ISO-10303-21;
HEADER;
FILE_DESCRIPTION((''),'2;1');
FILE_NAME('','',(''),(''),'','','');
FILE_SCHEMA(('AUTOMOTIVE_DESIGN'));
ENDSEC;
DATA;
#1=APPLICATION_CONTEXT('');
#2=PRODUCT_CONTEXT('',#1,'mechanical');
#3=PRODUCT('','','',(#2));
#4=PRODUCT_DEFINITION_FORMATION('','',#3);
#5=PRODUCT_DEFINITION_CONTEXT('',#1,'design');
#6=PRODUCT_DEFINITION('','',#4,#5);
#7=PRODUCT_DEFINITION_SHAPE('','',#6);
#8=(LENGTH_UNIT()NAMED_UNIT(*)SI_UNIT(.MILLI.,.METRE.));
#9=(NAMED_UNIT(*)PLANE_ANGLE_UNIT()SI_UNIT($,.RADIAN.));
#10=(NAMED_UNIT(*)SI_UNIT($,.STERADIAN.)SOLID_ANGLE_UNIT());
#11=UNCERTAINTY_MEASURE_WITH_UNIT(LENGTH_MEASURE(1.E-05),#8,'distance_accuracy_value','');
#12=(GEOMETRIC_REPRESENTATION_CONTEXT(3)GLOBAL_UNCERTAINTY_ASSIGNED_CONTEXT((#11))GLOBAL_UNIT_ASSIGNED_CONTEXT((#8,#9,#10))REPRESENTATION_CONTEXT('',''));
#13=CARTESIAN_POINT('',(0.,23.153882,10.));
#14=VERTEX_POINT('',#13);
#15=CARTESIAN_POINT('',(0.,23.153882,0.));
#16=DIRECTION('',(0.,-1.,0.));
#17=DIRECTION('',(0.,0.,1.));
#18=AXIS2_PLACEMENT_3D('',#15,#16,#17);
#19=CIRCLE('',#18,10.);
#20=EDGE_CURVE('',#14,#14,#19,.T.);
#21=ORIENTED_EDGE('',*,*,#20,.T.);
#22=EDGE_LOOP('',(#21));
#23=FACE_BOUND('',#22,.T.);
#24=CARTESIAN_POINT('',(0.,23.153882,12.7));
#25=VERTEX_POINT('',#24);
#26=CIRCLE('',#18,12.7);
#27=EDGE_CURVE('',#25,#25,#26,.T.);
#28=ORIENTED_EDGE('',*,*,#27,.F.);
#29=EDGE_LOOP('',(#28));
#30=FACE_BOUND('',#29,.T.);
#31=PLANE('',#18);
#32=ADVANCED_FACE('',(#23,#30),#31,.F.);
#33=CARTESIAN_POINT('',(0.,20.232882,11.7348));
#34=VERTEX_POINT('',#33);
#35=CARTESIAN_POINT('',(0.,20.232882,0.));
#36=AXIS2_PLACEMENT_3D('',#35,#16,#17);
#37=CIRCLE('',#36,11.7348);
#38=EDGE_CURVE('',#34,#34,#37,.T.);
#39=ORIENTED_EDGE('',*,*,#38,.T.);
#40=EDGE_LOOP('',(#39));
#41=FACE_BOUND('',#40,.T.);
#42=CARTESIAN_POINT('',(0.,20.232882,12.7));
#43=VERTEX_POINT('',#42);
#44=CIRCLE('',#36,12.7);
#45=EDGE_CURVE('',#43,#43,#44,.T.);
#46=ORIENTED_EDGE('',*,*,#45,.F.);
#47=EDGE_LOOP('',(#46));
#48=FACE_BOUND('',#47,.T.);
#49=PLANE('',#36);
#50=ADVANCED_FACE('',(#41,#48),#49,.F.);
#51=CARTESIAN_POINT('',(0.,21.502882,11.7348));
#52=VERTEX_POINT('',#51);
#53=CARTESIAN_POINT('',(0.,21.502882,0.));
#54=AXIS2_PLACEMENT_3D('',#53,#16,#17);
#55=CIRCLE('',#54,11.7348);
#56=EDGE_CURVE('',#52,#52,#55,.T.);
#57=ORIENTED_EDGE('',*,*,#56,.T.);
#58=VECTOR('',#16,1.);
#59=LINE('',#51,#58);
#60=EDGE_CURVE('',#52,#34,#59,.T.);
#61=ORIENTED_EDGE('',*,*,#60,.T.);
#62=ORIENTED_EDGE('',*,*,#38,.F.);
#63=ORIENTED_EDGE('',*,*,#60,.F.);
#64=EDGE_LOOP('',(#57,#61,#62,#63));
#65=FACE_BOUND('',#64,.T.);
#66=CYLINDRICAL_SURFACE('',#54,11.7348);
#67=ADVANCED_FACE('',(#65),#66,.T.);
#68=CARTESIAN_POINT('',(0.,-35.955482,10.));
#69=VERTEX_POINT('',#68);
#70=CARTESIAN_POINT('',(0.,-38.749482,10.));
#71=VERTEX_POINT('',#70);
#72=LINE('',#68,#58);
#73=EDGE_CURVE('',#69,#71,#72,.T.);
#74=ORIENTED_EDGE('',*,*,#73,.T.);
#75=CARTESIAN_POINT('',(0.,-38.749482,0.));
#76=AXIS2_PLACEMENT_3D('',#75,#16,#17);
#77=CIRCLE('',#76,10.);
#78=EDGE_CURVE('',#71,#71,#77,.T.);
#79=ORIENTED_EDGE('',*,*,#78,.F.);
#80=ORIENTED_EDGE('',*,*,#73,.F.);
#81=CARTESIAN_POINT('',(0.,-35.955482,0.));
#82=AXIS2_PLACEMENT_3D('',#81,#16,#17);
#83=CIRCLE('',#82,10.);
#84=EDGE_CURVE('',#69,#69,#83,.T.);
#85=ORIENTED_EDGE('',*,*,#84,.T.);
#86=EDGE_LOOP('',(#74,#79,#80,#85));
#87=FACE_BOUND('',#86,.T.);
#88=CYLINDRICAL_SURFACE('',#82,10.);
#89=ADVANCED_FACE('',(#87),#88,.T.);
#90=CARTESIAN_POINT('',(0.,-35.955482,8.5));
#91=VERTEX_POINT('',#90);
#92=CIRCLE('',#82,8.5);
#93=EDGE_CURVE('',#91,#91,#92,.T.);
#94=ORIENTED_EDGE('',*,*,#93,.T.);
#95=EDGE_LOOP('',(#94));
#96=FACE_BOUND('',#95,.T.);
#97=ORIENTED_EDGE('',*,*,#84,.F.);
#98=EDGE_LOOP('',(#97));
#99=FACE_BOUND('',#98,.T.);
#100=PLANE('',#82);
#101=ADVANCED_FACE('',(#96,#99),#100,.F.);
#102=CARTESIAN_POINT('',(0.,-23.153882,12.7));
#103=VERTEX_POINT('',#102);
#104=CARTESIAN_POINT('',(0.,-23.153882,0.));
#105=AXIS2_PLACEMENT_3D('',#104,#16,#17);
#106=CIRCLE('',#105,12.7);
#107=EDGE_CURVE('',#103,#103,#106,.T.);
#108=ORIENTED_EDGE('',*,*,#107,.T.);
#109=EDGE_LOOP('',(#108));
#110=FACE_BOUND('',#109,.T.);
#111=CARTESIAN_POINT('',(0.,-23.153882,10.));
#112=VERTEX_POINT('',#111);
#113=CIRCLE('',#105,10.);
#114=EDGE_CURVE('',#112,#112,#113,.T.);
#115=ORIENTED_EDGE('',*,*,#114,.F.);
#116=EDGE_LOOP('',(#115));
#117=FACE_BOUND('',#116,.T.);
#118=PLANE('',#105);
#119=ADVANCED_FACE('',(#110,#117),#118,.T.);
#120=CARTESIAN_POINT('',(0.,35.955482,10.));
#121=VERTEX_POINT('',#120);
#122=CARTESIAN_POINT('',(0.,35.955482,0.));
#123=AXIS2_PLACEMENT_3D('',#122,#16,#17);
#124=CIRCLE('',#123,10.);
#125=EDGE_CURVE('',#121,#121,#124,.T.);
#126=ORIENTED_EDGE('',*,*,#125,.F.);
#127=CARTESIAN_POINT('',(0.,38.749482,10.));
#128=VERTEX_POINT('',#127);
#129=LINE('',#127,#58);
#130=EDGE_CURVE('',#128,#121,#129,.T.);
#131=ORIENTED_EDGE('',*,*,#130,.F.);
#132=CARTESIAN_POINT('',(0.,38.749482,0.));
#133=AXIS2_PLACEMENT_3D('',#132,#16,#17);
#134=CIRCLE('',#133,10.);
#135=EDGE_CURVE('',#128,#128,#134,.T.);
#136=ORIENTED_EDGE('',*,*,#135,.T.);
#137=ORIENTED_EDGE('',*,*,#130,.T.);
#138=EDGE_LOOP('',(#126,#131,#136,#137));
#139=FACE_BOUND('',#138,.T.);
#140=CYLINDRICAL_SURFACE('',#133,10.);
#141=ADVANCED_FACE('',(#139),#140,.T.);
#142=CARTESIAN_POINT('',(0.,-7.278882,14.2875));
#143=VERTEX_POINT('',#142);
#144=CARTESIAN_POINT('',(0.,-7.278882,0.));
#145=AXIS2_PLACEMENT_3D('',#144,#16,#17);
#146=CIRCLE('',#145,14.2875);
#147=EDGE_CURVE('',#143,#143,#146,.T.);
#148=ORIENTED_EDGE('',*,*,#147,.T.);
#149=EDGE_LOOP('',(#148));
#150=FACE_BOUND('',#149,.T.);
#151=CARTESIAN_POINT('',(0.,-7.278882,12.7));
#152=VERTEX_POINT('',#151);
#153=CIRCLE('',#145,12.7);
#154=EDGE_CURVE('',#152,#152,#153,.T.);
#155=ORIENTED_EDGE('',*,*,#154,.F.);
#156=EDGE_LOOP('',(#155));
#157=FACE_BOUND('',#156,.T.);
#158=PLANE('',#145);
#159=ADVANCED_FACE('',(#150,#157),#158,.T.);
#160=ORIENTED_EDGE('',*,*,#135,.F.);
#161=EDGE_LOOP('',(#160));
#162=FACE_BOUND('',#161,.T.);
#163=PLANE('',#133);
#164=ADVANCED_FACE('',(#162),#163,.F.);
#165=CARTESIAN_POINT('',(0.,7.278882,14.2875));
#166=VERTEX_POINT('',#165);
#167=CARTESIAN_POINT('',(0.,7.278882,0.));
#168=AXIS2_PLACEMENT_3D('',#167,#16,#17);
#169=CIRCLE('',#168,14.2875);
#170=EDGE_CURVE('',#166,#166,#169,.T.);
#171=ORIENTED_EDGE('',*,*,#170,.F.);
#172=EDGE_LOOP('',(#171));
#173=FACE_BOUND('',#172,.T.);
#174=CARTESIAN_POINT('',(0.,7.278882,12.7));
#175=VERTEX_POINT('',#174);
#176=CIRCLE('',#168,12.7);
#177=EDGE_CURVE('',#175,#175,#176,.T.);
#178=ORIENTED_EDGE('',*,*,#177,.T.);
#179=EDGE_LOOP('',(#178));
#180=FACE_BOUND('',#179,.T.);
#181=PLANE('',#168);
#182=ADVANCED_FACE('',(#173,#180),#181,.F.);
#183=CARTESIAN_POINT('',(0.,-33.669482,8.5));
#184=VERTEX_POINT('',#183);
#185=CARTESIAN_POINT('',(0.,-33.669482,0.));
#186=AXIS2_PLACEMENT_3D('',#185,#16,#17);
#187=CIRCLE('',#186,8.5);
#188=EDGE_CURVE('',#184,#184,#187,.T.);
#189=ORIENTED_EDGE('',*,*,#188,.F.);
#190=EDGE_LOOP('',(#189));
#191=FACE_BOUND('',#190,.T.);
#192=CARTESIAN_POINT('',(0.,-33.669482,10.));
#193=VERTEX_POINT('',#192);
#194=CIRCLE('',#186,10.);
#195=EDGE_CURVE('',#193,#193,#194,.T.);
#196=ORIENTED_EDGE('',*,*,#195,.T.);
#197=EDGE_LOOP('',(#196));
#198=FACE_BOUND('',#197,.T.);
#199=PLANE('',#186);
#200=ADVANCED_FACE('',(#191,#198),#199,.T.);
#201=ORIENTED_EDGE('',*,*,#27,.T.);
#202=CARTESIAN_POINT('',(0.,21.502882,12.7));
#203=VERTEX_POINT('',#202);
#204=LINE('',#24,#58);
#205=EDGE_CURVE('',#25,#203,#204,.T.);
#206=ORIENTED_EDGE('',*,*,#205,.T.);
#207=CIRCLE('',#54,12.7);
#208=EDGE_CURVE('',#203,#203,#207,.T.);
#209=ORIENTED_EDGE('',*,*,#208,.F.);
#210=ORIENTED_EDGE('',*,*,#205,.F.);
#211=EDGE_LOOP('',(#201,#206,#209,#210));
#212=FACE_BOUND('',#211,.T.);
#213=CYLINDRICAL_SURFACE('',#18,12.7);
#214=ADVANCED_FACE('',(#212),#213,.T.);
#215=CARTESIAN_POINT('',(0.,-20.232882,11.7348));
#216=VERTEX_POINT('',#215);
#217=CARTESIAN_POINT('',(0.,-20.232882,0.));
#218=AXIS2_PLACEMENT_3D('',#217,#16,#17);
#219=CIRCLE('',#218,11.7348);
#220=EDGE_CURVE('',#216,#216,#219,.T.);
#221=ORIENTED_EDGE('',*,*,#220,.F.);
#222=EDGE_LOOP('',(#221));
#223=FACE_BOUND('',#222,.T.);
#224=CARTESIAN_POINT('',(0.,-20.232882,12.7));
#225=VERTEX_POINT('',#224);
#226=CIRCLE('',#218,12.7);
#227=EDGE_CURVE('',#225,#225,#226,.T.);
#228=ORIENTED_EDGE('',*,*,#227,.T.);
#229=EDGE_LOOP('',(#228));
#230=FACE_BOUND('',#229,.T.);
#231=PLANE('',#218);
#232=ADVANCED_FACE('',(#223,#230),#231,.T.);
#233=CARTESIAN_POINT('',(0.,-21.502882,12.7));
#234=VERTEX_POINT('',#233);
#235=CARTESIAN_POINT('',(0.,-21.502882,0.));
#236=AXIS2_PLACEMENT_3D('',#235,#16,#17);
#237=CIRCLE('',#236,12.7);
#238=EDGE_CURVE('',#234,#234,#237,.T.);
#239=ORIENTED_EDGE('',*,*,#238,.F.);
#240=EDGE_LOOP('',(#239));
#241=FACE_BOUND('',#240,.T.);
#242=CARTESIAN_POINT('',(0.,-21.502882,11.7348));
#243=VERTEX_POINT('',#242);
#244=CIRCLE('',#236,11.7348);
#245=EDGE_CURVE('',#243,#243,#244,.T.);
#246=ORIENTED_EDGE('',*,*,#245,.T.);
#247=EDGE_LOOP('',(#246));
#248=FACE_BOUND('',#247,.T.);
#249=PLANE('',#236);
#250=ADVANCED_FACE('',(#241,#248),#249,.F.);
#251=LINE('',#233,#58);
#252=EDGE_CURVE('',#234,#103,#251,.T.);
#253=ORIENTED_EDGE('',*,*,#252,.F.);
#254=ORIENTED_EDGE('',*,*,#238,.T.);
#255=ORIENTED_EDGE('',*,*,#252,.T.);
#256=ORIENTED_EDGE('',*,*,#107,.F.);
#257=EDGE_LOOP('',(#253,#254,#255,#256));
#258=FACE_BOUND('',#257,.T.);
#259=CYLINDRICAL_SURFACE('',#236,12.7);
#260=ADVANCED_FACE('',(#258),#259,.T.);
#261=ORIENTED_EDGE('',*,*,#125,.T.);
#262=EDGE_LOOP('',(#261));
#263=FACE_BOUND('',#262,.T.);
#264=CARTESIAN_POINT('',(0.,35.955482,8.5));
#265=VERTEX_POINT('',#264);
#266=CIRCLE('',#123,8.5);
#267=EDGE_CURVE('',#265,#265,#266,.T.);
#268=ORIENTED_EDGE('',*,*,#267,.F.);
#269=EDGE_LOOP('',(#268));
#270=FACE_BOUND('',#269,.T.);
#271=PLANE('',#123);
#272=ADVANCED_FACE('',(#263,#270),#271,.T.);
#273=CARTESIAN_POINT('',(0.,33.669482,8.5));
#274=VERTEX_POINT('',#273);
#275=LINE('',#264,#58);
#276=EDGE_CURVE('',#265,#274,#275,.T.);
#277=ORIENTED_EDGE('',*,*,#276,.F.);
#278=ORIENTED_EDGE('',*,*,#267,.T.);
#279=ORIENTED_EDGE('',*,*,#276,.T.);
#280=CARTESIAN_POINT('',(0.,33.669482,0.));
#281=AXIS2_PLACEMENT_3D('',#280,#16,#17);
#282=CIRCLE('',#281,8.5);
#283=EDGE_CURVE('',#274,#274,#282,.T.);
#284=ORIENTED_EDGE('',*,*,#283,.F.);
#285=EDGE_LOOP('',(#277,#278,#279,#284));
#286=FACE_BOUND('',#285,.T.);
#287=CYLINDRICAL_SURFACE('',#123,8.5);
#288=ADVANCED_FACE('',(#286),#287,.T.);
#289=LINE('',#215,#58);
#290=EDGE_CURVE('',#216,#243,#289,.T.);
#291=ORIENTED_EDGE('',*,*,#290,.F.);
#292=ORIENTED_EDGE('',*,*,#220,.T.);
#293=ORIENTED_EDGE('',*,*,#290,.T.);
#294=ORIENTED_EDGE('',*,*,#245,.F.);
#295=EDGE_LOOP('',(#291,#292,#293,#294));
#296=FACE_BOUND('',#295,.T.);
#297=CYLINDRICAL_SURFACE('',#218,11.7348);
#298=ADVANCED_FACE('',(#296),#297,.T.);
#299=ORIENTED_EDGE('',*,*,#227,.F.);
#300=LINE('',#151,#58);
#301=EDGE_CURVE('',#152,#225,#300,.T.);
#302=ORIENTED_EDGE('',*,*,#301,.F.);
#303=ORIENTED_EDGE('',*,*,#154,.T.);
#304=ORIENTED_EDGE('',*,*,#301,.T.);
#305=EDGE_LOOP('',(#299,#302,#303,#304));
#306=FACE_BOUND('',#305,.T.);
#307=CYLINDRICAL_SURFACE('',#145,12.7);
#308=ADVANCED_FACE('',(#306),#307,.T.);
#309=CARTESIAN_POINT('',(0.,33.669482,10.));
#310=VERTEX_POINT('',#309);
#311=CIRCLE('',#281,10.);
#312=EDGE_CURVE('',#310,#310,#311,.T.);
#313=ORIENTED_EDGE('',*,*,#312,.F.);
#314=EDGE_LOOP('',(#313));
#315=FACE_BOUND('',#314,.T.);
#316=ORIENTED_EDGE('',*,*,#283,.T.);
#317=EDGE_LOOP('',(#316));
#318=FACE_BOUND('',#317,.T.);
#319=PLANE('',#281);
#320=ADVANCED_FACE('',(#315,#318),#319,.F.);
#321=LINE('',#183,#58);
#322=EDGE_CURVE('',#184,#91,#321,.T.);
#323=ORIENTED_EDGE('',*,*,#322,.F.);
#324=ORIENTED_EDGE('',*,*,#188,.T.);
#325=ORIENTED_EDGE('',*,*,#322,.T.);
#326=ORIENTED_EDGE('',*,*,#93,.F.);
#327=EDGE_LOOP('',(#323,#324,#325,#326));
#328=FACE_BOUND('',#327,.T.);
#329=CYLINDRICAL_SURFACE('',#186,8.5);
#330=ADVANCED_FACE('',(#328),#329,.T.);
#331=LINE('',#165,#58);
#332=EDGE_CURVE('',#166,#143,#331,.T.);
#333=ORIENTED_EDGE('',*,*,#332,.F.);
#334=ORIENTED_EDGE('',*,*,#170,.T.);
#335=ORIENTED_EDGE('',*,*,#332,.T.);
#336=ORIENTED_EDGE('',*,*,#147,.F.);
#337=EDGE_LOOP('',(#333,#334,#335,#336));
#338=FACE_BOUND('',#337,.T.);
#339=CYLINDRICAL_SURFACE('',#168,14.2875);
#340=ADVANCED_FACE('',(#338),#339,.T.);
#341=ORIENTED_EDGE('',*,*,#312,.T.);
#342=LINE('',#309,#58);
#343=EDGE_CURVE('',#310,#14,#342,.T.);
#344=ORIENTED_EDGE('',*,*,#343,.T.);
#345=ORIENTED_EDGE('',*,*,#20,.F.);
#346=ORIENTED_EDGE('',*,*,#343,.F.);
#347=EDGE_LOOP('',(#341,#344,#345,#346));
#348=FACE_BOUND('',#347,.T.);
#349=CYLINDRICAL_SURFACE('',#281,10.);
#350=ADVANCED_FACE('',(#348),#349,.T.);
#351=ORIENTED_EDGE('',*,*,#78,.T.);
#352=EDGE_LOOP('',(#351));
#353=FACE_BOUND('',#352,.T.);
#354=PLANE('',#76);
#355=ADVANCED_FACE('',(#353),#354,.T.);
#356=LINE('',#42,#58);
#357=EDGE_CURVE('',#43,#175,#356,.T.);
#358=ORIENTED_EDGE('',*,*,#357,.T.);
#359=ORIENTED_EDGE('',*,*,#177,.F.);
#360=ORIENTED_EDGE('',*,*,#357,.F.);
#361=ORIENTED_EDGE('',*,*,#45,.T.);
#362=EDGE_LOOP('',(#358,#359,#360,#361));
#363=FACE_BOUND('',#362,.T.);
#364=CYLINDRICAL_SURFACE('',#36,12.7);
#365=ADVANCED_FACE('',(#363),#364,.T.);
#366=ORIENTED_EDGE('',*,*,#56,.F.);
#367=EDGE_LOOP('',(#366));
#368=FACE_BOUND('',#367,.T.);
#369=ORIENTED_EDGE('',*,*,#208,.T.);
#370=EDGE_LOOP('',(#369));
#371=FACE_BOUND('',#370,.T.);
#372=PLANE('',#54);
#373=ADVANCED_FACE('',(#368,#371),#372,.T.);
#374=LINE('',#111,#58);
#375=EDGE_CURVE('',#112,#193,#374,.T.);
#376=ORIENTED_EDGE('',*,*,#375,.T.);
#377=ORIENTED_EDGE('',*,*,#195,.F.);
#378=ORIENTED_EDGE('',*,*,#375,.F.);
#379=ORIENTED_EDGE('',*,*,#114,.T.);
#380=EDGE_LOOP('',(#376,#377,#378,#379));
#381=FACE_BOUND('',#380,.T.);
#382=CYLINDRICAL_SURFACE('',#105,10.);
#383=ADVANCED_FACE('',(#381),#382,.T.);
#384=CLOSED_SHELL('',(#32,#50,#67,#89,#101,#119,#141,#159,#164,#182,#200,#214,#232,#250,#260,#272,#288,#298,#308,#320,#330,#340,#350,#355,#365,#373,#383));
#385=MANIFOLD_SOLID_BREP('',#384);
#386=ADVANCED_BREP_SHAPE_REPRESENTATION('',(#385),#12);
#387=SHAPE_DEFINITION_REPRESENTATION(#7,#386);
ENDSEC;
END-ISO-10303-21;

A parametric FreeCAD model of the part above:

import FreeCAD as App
import Part
import Sketcher
Q = App.Units.Quantity


def add_polygon(sketch, points):
    """Adds a closed chain of lines whose ends are joined by coincident constraints."""
    first, n = sketch.GeometryCount, len(points)
    for a, b in zip(points, points[1:] + points[:1]):
        sketch.addGeometry(Part.LineSegment(App.Vector(*a, 0), App.Vector(*b, 0)), False)
    for i in range(n):
        sketch.addConstraint(Sketcher.Constraint("Coincident", first + i, 2, first + (i + 1) % n, 1))

doc = App.newDocument("Part")
body = doc.addObject("PartDesign::Body", "Body")

sketch1 = body.newObject("Sketcher::SketchObject", "Sketch")
sketch1.AttachmentSupport = (doc.getObject("YZ_Plane"), [""])
sketch1.MapMode = "FlatFace"
add_polygon(sketch1, [(38.7, 0), (38.7, 10), (36, 10), (36, 8.5), (33.7, 8.5), (33.7, 10), (23.2, 10), (23.2, 12.7), (21.5, 12.7), (21.5, 11.7), (20.2, 11.7), (20.2, 12.7), (7.3, 12.7), (7.3, 14.3), (-7.3, 14.3), (-7.3, 12.7), (-20.2, 12.7), (-20.2, 11.7), (-21.5, 11.7), (-21.5, 12.7), (-23.2, 12.7), (-23.2, 10), (-33.7, 10), (-33.7, 8.5), (-36, 8.5), (-36, 10), (-38.7, 10), (-38.7, 0)])
sketch1.addConstraint([
    Sketcher.Constraint("Vertical", 0),
    Sketcher.Constraint("Horizontal", 1),
    Sketcher.Constraint("Vertical", 2),
    Sketcher.Constraint("Horizontal", 3),
    Sketcher.Constraint("Vertical", 4),
    Sketcher.Constraint("Horizontal", 5),
    Sketcher.Constraint("Vertical", 6),
    Sketcher.Constraint("Horizontal", 7),
    Sketcher.Constraint("Vertical", 8),
    Sketcher.Constraint("Horizontal", 9),
    Sketcher.Constraint("Vertical", 10),
    Sketcher.Constraint("Horizontal", 11),
    Sketcher.Constraint("Vertical", 12),
    Sketcher.Constraint("Horizontal", 13),
    Sketcher.Constraint("Vertical", 14),
    Sketcher.Constraint("Horizontal", 15),
    Sketcher.Constraint("Vertical", 16),
    Sketcher.Constraint("Horizontal", 17),
    Sketcher.Constraint("Vertical", 18),
    Sketcher.Constraint("Horizontal", 19),
    Sketcher.Constraint("Vertical", 20),
    Sketcher.Constraint("Horizontal", 21),
    Sketcher.Constraint("Vertical", 22),
    Sketcher.Constraint("Horizontal", 23),
    Sketcher.Constraint("Vertical", 24),
    Sketcher.Constraint("Horizontal", 25),
    Sketcher.Constraint("Vertical", 26),
    Sketcher.Constraint("Horizontal", 27),
    Sketcher.Constraint("Symmetric", 26, 2, 27, 2, -1, 1),
    Sketcher.Constraint("Symmetric", 11, 2, 14, 2, -2),
    Sketcher.Constraint("Symmetric", 9, 2, 16, 2, -2),
    Sketcher.Constraint("Symmetric", 7, 2, 18, 2, -2),
    Sketcher.Constraint("Symmetric", 5, 2, 20, 2, -2),
    Sketcher.Constraint("Symmetric", 3, 2, 22, 2, -2),
    Sketcher.Constraint("Symmetric", 1, 2, 24, 2, -2),
    Sketcher.Constraint("Horizontal", 1, 2, 4, 2),
    Sketcher.Constraint("Horizontal", 7, 2, 10, 2),
    Sketcher.Constraint("DistanceX", 1, 2, 1, 1, Q("0.11 in")),
    Sketcher.Constraint("DistanceX", 3, 2, 3, 1, Q("0.09 in")),
    Sketcher.Constraint("DistanceX", 9, 2, 9, 1, Q("0.05 in")),
    Sketcher.Constraint("DistanceX", 11, 2, 11, 1, Q("0.51 in")),
    Sketcher.Constraint("DistanceY", -1, 1, 6, 2, Q("0.5 in")),
    Sketcher.Constraint("DistanceX", 5, 2, 5, 1, Q("0.414 in")),
    Sketcher.Constraint("DistanceX", 7, 2, 7, 1, Q("0.065 in")),
    Sketcher.Constraint("DistanceY", 8, 2, 8, 1, Q("0.038 in")),
    Sketcher.Constraint("DistanceY", 12, 1, 12, 2, Q("0.0625 in")),
    Sketcher.Constraint("DistanceY", 0, 1, 0, 2, 10.0),
    Sketcher.Constraint("DistanceY", 2, 2, 2, 1, 1.5),
    Sketcher.Constraint("DistanceX", 13, 2, 13, 1, 14.557764),
])
revolution = body.newObject("PartDesign::Revolution", "Revolution")
revolution.Profile = sketch1
revolution.ReferenceAxis = (sketch1, ["H_Axis"])
revolution.Angle = 360

doc.recompute()
